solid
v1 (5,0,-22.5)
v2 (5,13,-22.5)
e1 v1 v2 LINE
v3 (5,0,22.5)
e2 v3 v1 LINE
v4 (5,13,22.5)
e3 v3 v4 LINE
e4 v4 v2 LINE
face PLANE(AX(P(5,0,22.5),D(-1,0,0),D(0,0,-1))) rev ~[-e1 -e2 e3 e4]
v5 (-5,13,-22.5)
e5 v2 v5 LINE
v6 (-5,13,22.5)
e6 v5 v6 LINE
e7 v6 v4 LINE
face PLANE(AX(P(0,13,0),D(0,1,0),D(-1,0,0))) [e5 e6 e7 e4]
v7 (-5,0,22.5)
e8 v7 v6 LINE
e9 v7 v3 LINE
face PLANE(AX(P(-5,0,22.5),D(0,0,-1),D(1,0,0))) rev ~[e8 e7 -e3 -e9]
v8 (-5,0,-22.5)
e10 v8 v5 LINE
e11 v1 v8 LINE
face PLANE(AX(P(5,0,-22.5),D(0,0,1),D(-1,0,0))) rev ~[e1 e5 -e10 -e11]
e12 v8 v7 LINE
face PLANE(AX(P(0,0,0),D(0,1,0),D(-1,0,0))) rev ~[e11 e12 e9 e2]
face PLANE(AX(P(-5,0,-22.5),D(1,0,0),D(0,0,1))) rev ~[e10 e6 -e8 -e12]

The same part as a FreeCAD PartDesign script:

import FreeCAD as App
import Part
import Sketcher

V = App.Vector
Q = App.Units.Quantity

doc = App.newDocument("Part")
body = doc.addObject("PartDesign::Body", "Body")

# Sketch on XZ plane
sketch1 = body.newObject("Sketcher::SketchObject", "Sketch")
sketch1.AttachmentSupport = (doc.getObject("XZ_Plane"), [""])
sketch1.MapMode = "FlatFace"
sketch1.addGeometry([
    Part.LineSegment(V(-5, -22.5, 0), V(-5, 22.5, 0)),
    Part.LineSegment(V(-5, 22.5, 0), V(5, 22.5, 0)),
    Part.LineSegment(V(5, 22.5, 0), V(5, -22.5, 0)),
    Part.LineSegment(V(5, -22.5, 0), V(-5, -22.5, 0)),
], False)
sketch1.addConstraint([
    Sketcher.Constraint("Coincident", 0, 2, 1, 1),
    Sketcher.Constraint("Coincident", 1, 2, 2, 1),
    Sketcher.Constraint("Coincident", 2, 2, 3, 1),
    Sketcher.Constraint("Coincident", 3, 2, 0, 1),
    Sketcher.Constraint("Vertical", 0),
    Sketcher.Constraint("Horizontal", 1),
    Sketcher.Constraint("Vertical", 2),
    Sketcher.Constraint("Horizontal", 3),
    Sketcher.Constraint("Symmetric", 0, 2, 2, 2, -1, 1),
    Sketcher.Constraint("DistanceX", 1, 1, 1, 2, Q("10 mm")),
    Sketcher.Constraint("DistanceY", 0, 1, 0, 2, Q("45 mm")),
])
pad1 = body.newObject("PartDesign::Pad", "Pad")
pad1.Profile = sketch1
pad1.Length = 13
pad1.Reversed = True

doc.recompute()
